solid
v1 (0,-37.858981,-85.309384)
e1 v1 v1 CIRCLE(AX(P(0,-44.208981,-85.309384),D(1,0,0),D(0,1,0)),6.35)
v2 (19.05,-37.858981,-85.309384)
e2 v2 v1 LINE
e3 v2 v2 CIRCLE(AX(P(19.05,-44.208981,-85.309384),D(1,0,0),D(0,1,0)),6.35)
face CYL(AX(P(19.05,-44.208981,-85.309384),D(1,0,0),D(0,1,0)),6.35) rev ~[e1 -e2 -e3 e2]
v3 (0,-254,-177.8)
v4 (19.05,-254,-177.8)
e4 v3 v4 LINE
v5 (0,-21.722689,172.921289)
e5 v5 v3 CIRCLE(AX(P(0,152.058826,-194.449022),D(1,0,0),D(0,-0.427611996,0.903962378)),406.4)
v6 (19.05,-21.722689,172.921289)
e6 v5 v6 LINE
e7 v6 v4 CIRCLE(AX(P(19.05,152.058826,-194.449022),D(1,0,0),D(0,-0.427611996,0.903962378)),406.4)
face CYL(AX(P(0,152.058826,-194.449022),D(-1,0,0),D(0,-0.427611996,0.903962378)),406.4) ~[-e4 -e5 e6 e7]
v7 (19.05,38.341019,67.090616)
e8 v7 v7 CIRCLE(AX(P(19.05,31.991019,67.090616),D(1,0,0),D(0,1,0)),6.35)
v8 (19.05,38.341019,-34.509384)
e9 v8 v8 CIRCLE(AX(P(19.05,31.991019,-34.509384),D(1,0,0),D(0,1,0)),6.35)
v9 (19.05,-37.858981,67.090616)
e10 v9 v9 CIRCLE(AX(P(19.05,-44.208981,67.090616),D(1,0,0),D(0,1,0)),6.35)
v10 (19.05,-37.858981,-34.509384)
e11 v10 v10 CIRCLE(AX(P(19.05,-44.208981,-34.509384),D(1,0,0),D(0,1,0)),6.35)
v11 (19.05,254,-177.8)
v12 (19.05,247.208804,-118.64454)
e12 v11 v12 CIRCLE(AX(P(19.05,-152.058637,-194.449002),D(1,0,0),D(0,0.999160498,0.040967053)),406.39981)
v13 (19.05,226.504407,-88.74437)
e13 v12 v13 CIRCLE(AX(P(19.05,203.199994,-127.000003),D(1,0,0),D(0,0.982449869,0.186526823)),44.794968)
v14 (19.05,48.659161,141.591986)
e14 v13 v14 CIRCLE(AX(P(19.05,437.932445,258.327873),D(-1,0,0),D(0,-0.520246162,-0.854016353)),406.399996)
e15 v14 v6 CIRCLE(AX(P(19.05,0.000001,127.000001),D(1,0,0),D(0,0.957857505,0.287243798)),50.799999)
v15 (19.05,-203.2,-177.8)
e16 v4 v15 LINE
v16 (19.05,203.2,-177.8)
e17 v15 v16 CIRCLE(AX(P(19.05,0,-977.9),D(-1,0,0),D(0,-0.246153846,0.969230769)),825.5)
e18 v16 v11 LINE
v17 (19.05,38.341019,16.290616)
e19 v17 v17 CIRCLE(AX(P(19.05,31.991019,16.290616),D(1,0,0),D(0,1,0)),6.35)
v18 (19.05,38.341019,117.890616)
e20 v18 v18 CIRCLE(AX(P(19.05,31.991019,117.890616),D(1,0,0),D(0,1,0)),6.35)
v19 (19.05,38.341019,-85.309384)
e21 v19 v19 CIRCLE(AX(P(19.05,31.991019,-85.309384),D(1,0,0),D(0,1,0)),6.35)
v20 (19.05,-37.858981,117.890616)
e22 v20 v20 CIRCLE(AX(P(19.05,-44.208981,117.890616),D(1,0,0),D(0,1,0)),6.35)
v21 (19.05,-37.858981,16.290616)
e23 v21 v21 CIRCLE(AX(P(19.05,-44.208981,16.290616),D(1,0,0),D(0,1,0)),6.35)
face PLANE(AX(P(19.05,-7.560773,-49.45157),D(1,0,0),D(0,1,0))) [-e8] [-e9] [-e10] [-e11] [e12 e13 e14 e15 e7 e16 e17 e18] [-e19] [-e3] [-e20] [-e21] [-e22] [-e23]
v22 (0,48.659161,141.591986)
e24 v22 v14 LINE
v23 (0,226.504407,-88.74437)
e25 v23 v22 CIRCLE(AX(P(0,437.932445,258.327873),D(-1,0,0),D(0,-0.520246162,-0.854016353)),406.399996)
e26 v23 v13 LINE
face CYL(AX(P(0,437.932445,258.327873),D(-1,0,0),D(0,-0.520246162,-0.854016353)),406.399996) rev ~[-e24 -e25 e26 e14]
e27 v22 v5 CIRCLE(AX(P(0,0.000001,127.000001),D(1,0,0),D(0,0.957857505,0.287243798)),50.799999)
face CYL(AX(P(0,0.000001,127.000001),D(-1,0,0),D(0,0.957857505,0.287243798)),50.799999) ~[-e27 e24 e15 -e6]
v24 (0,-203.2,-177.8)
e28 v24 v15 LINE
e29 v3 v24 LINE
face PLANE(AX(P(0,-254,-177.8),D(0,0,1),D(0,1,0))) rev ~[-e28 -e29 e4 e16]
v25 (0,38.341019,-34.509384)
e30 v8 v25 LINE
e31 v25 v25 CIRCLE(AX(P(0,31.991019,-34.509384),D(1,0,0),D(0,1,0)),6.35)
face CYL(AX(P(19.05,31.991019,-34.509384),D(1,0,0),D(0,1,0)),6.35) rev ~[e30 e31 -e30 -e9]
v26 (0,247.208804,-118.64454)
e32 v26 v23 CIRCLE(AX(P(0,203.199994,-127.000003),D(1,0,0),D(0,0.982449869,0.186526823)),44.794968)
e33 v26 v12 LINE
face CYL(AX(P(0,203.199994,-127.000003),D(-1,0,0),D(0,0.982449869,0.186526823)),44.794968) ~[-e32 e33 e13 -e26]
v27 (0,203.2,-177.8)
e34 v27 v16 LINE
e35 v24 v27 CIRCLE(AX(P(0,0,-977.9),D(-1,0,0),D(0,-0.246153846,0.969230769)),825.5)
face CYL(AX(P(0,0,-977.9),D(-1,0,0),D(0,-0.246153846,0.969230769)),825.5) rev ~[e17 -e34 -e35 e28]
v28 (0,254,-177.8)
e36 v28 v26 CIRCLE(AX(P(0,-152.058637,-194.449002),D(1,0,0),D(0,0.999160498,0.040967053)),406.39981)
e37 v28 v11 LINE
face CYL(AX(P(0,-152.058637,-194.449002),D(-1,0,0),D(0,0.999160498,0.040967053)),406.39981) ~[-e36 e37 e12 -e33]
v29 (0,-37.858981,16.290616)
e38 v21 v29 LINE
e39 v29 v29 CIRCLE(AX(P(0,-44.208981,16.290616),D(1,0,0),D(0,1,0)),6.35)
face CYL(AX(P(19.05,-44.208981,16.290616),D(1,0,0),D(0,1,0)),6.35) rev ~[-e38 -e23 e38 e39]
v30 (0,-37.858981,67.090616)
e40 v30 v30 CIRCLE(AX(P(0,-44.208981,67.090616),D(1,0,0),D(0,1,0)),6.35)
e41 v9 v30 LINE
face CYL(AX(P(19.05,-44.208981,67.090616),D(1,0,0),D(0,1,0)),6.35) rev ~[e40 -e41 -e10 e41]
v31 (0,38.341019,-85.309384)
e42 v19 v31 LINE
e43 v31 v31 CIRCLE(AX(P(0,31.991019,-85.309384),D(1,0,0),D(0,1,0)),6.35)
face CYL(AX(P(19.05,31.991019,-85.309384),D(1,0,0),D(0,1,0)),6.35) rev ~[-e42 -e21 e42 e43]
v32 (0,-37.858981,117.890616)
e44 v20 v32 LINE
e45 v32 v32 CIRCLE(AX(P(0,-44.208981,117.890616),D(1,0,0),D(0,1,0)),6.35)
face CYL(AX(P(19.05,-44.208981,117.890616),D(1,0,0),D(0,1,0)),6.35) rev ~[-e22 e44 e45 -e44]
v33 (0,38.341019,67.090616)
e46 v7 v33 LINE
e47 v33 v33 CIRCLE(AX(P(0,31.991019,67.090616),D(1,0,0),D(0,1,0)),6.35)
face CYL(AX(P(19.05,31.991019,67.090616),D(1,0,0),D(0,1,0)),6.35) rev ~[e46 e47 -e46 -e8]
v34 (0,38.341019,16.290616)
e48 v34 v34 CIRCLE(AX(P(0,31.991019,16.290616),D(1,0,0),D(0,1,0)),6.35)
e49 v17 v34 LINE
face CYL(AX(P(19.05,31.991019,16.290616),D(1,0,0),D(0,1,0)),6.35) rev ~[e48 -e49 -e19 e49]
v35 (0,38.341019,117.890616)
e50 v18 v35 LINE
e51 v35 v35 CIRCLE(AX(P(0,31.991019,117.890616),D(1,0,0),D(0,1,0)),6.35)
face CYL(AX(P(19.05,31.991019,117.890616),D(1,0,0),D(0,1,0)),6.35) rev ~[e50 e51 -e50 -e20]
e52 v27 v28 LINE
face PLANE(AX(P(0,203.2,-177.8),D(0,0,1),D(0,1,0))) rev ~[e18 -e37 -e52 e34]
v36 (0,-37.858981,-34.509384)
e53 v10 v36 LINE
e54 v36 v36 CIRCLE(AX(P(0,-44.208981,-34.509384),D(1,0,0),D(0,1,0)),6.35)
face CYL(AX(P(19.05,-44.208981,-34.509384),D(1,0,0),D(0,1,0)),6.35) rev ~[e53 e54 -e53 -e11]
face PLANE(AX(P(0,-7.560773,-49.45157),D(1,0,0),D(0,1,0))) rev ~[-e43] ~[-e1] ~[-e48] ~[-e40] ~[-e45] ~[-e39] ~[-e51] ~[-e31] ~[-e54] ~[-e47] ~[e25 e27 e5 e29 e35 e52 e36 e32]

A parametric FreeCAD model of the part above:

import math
import FreeCAD as App
import Part
import Sketcher

V = App.Vector
Q = App.Units.Quantity

doc = App.newDocument("Part")
params = doc.addObject("Spreadsheet::Sheet", "Params")
for row, (alias, value) in enumerate([
    ("sketch1_radius", "16 in"),
    ("sketch1_radius2", "15.9999999 in"),
    ("sketch1_radius3", "2 in"),
    ("sketch1_radius4", "32.5 in"),
    ("sketch1_width", "2 in"),
    ("pad1_length", "0.75 in"),
    ("sketch2_diameter", "0.5 in"),
], start=1):
    params.set(f"A{row}", alias)
    params.set(f"B{row}", "=" + value)
    params.setAlias(f"B{row}", alias)

body = doc.addObject("PartDesign::Body", "Body")

sketch1 = doc.addObject("Sketcher::SketchObject", "Sketch")
body.addObject(sketch1)
sketch1.AttachmentSupport = (doc.YZ_Plane, [""])
sketch1.MapMode = "FlatFace"
sketch1.addGeometry([
    Part.ArcOfCircle(Part.Circle(V(152, -194, 0), V(0, 0, 1), 406), math.radians(115), math.radians(178)),
    Part.LineSegment(V(-254, -178, 0), V(-203, -178, 0)),
    Part.ArcOfCircle(Part.Circle(V(0, -978, 0), V(0, 0, 1), 826), math.radians(76), math.radians(104)),
    Part.LineSegment(V(203, -178, 0), V(254, -178, 0)),
    Part.ArcOfCircle(Part.Circle(V(-152, -194, 0), V(0, 0, 1), 406), math.radians(2.35), math.radians(10.75)),
    Part.ArcOfCircle(Part.Circle(V(203, -127, 0), V(0, 0, 1), 45), math.radians(11), math.radians(59)),
    Part.ArcOfCircle(Part.Circle(V(438, 258, 0), V(0, 0, 1), 406), math.radians(-163), math.radians(-121)),
    Part.ArcOfCircle(Part.Circle(V(0, 127, 0), V(0, 0, 1), 51), math.radians(17), math.radians(115)),
], False)
sketch1.addConstraint([
    Sketcher.Constraint("Coincident", 0, 2, 1, 1),
    Sketcher.Constraint("Coincident", 1, 2, 2, 2),
    Sketcher.Constraint("Coincident", 2, 1, 3, 1),
    Sketcher.Constraint("Coincident", 3, 2, 4, 1),
    Sketcher.Constraint("Tangent", 4, 2, 5, 1),
    Sketcher.Constraint("Tangent", 5, 2, 6, 2),
    Sketcher.Constraint("Tangent", 6, 1, 7, 1),
    Sketcher.Constraint("Tangent", 7, 2, 0, 1),
    Sketcher.Constraint("Horizontal", 1),
    Sketcher.Constraint("Horizontal", 3),
    Sketcher.Constraint("PointOnObject", 2, 3, -2),
    Sketcher.Constraint("PointOnObject", 7, 3, -2),
    Sketcher.Constraint("Equal", 1, 3),
    Sketcher.Constraint("Radius", 0, Q("16 in")),
    Sketcher.Constraint("Radius", 6, Q("15.9999999 in")),
    Sketcher.Constraint("Radius", 7, Q("2 in")),
    Sketcher.Constraint("Radius", 2, Q("32.5 in")),
    Sketcher.Constraint("DistanceX", 1, 1, 1, 2, Q("2 in")),
    Sketcher.Constraint("DistanceY", 5, 3, -1, 1, Q("5.0000001 in")),
    Sketcher.Constraint("DistanceY", -1, 1, 7, 3, Q("5.0000001 in")),
    Sketcher.Constraint("DistanceX", 0, 2, -1, 1, Q("10 in")),
    Sketcher.Constraint("DistanceY", 1, 2, -1, 1, Q("7 in")),
    Sketcher.Constraint("DistanceX", -1, 1, 3, 2, Q("10 in")),
    Sketcher.Constraint("Radius", 4, Q("406.39981 mm")),
    Sketcher.Constraint("Radius", 5, Q("44.794968 mm")),
    Sketcher.Constraint("DistanceY", 4, 3, 5, 3, Q("67.448999 mm")),
])
sketch1.setExpression("Constraints[13]", "Params.sketch1_radius")
sketch1.setExpression("Constraints[14]", "Params.sketch1_radius2")
sketch1.setExpression("Constraints[15]", "Params.sketch1_radius3")
sketch1.setExpression("Constraints[16]", "Params.sketch1_radius4")
sketch1.setExpression("Constraints[17]", "Params.sketch1_width")
pad1 = doc.addObject("PartDesign::Pad", "Pad")
body.addObject(pad1)
pad1.Profile = sketch1
pad1.setExpression("Length", "Params.pad1_length")

sketch2 = doc.addObject("Sketcher::SketchObject", "Sketch001")
body.addObject(sketch2)
sketch2.AttachmentSupport = (doc.YZ_Plane, [""])
sketch2.MapMode = "FlatFace"
sketch2.AttachmentOffset = App.Placement(V(0, 0, 0.75 * 25.4), App.Rotation())
sketch2.addGeometry([
    Part.Circle(V(32, -85, 0), V(0, 0, 1), 6),
    Part.Circle(V(32, -35, 0), V(0, 0, 1), 6),
    Part.Circle(V(32, 16, 0), V(0, 0, 1), 6),
    Part.Circle(V(32, 67, 0), V(0, 0, 1), 6),
    Part.Circle(V(-44, -85, 0), V(0, 0, 1), 6),
    Part.Circle(V(-44, -35, 0), V(0, 0, 1), 6),
    Part.Circle(V(-44, 16, 0), V(0, 0, 1), 6),
    Part.Circle(V(-44, 67, 0), V(0, 0, 1), 6),
    Part.Circle(V(32, 118, 0), V(0, 0, 1), 6),
    Part.Circle(V(-44, 118, 0), V(0, 0, 1), 6),
], False)
sketch2.addConstraint([
    Sketcher.Constraint("Equal", 0, 1),
    Sketcher.Constraint("Equal", 1, 2),
    Sketcher.Constraint("Equal", 2, 3),
    Sketcher.Constraint("Equal", 3, 4),
    Sketcher.Constraint("Equal", 4, 5),
    Sketcher.Constraint("Equal", 5, 6),
    Sketcher.Constraint("Equal", 6, 7),
    Sketcher.Constraint("Equal", 7, 8),
    Sketcher.Constraint("Equal", 8, 9),
    Sketcher.Constraint("Horizontal", 0, 3, 4, 3),
    Sketcher.Constraint("Horizontal", 1, 3, 5, 3),
    Sketcher.Constraint("Horizontal", 2, 3, 6, 3),
    Sketcher.Constraint("Horizontal", 3, 3, 7, 3),
    Sketcher.Constraint("Horizontal", 8, 3, 9, 3),
    Sketcher.Constraint("Vertical", 0, 3, 1, 3),
    Sketcher.Constraint("Vertical", 1, 3, 2, 3),
    Sketcher.Constraint("Vertical", 2, 3, 3, 3),
    Sketcher.Constraint("Vertical", 4, 3, 5, 3),
    Sketcher.Constraint("Vertical", 5, 3, 6, 3),
    Sketcher.Constraint("Vertical", 6, 3, 7, 3),
    Sketcher.Constraint("Vertical", 3, 3, 8, 3),
    Sketcher.Constraint("Vertical", 7, 3, 9, 3),
    Sketcher.Constraint("Diameter", 0, Q("0.5 in")),
    Sketcher.Constraint("DistanceY", 0, 3, 1, 3, Q("2 in")),
    Sketcher.Constraint("DistanceY", 1, 3, 2, 3, Q("2 in")),
    Sketcher.Constraint("DistanceY", 2, 3, 3, 3, Q("2 in")),
    Sketcher.Constraint("DistanceX", 4, 3, 0, 3, Q("3 in")),
    Sketcher.Constraint("DistanceY", 3, 3, 8, 3, Q("2 in")),
    Sketcher.Constraint("DistanceX", -1, 1, 0, 3, Q("31.991019 mm")),
    Sketcher.Constraint("DistanceY", 0, 3, -1, 1, Q("85.309384 mm")),
])
sketch2.setExpression("Constraints[22]", "Params.sketch2_diameter")
pocket1 = doc.addObject("PartDesign::Pocket", "Pocket")
body.addObject(pocket1)
pocket1.Profile = sketch2
pocket1.Type = "ThroughAll"

doc.recompute()
